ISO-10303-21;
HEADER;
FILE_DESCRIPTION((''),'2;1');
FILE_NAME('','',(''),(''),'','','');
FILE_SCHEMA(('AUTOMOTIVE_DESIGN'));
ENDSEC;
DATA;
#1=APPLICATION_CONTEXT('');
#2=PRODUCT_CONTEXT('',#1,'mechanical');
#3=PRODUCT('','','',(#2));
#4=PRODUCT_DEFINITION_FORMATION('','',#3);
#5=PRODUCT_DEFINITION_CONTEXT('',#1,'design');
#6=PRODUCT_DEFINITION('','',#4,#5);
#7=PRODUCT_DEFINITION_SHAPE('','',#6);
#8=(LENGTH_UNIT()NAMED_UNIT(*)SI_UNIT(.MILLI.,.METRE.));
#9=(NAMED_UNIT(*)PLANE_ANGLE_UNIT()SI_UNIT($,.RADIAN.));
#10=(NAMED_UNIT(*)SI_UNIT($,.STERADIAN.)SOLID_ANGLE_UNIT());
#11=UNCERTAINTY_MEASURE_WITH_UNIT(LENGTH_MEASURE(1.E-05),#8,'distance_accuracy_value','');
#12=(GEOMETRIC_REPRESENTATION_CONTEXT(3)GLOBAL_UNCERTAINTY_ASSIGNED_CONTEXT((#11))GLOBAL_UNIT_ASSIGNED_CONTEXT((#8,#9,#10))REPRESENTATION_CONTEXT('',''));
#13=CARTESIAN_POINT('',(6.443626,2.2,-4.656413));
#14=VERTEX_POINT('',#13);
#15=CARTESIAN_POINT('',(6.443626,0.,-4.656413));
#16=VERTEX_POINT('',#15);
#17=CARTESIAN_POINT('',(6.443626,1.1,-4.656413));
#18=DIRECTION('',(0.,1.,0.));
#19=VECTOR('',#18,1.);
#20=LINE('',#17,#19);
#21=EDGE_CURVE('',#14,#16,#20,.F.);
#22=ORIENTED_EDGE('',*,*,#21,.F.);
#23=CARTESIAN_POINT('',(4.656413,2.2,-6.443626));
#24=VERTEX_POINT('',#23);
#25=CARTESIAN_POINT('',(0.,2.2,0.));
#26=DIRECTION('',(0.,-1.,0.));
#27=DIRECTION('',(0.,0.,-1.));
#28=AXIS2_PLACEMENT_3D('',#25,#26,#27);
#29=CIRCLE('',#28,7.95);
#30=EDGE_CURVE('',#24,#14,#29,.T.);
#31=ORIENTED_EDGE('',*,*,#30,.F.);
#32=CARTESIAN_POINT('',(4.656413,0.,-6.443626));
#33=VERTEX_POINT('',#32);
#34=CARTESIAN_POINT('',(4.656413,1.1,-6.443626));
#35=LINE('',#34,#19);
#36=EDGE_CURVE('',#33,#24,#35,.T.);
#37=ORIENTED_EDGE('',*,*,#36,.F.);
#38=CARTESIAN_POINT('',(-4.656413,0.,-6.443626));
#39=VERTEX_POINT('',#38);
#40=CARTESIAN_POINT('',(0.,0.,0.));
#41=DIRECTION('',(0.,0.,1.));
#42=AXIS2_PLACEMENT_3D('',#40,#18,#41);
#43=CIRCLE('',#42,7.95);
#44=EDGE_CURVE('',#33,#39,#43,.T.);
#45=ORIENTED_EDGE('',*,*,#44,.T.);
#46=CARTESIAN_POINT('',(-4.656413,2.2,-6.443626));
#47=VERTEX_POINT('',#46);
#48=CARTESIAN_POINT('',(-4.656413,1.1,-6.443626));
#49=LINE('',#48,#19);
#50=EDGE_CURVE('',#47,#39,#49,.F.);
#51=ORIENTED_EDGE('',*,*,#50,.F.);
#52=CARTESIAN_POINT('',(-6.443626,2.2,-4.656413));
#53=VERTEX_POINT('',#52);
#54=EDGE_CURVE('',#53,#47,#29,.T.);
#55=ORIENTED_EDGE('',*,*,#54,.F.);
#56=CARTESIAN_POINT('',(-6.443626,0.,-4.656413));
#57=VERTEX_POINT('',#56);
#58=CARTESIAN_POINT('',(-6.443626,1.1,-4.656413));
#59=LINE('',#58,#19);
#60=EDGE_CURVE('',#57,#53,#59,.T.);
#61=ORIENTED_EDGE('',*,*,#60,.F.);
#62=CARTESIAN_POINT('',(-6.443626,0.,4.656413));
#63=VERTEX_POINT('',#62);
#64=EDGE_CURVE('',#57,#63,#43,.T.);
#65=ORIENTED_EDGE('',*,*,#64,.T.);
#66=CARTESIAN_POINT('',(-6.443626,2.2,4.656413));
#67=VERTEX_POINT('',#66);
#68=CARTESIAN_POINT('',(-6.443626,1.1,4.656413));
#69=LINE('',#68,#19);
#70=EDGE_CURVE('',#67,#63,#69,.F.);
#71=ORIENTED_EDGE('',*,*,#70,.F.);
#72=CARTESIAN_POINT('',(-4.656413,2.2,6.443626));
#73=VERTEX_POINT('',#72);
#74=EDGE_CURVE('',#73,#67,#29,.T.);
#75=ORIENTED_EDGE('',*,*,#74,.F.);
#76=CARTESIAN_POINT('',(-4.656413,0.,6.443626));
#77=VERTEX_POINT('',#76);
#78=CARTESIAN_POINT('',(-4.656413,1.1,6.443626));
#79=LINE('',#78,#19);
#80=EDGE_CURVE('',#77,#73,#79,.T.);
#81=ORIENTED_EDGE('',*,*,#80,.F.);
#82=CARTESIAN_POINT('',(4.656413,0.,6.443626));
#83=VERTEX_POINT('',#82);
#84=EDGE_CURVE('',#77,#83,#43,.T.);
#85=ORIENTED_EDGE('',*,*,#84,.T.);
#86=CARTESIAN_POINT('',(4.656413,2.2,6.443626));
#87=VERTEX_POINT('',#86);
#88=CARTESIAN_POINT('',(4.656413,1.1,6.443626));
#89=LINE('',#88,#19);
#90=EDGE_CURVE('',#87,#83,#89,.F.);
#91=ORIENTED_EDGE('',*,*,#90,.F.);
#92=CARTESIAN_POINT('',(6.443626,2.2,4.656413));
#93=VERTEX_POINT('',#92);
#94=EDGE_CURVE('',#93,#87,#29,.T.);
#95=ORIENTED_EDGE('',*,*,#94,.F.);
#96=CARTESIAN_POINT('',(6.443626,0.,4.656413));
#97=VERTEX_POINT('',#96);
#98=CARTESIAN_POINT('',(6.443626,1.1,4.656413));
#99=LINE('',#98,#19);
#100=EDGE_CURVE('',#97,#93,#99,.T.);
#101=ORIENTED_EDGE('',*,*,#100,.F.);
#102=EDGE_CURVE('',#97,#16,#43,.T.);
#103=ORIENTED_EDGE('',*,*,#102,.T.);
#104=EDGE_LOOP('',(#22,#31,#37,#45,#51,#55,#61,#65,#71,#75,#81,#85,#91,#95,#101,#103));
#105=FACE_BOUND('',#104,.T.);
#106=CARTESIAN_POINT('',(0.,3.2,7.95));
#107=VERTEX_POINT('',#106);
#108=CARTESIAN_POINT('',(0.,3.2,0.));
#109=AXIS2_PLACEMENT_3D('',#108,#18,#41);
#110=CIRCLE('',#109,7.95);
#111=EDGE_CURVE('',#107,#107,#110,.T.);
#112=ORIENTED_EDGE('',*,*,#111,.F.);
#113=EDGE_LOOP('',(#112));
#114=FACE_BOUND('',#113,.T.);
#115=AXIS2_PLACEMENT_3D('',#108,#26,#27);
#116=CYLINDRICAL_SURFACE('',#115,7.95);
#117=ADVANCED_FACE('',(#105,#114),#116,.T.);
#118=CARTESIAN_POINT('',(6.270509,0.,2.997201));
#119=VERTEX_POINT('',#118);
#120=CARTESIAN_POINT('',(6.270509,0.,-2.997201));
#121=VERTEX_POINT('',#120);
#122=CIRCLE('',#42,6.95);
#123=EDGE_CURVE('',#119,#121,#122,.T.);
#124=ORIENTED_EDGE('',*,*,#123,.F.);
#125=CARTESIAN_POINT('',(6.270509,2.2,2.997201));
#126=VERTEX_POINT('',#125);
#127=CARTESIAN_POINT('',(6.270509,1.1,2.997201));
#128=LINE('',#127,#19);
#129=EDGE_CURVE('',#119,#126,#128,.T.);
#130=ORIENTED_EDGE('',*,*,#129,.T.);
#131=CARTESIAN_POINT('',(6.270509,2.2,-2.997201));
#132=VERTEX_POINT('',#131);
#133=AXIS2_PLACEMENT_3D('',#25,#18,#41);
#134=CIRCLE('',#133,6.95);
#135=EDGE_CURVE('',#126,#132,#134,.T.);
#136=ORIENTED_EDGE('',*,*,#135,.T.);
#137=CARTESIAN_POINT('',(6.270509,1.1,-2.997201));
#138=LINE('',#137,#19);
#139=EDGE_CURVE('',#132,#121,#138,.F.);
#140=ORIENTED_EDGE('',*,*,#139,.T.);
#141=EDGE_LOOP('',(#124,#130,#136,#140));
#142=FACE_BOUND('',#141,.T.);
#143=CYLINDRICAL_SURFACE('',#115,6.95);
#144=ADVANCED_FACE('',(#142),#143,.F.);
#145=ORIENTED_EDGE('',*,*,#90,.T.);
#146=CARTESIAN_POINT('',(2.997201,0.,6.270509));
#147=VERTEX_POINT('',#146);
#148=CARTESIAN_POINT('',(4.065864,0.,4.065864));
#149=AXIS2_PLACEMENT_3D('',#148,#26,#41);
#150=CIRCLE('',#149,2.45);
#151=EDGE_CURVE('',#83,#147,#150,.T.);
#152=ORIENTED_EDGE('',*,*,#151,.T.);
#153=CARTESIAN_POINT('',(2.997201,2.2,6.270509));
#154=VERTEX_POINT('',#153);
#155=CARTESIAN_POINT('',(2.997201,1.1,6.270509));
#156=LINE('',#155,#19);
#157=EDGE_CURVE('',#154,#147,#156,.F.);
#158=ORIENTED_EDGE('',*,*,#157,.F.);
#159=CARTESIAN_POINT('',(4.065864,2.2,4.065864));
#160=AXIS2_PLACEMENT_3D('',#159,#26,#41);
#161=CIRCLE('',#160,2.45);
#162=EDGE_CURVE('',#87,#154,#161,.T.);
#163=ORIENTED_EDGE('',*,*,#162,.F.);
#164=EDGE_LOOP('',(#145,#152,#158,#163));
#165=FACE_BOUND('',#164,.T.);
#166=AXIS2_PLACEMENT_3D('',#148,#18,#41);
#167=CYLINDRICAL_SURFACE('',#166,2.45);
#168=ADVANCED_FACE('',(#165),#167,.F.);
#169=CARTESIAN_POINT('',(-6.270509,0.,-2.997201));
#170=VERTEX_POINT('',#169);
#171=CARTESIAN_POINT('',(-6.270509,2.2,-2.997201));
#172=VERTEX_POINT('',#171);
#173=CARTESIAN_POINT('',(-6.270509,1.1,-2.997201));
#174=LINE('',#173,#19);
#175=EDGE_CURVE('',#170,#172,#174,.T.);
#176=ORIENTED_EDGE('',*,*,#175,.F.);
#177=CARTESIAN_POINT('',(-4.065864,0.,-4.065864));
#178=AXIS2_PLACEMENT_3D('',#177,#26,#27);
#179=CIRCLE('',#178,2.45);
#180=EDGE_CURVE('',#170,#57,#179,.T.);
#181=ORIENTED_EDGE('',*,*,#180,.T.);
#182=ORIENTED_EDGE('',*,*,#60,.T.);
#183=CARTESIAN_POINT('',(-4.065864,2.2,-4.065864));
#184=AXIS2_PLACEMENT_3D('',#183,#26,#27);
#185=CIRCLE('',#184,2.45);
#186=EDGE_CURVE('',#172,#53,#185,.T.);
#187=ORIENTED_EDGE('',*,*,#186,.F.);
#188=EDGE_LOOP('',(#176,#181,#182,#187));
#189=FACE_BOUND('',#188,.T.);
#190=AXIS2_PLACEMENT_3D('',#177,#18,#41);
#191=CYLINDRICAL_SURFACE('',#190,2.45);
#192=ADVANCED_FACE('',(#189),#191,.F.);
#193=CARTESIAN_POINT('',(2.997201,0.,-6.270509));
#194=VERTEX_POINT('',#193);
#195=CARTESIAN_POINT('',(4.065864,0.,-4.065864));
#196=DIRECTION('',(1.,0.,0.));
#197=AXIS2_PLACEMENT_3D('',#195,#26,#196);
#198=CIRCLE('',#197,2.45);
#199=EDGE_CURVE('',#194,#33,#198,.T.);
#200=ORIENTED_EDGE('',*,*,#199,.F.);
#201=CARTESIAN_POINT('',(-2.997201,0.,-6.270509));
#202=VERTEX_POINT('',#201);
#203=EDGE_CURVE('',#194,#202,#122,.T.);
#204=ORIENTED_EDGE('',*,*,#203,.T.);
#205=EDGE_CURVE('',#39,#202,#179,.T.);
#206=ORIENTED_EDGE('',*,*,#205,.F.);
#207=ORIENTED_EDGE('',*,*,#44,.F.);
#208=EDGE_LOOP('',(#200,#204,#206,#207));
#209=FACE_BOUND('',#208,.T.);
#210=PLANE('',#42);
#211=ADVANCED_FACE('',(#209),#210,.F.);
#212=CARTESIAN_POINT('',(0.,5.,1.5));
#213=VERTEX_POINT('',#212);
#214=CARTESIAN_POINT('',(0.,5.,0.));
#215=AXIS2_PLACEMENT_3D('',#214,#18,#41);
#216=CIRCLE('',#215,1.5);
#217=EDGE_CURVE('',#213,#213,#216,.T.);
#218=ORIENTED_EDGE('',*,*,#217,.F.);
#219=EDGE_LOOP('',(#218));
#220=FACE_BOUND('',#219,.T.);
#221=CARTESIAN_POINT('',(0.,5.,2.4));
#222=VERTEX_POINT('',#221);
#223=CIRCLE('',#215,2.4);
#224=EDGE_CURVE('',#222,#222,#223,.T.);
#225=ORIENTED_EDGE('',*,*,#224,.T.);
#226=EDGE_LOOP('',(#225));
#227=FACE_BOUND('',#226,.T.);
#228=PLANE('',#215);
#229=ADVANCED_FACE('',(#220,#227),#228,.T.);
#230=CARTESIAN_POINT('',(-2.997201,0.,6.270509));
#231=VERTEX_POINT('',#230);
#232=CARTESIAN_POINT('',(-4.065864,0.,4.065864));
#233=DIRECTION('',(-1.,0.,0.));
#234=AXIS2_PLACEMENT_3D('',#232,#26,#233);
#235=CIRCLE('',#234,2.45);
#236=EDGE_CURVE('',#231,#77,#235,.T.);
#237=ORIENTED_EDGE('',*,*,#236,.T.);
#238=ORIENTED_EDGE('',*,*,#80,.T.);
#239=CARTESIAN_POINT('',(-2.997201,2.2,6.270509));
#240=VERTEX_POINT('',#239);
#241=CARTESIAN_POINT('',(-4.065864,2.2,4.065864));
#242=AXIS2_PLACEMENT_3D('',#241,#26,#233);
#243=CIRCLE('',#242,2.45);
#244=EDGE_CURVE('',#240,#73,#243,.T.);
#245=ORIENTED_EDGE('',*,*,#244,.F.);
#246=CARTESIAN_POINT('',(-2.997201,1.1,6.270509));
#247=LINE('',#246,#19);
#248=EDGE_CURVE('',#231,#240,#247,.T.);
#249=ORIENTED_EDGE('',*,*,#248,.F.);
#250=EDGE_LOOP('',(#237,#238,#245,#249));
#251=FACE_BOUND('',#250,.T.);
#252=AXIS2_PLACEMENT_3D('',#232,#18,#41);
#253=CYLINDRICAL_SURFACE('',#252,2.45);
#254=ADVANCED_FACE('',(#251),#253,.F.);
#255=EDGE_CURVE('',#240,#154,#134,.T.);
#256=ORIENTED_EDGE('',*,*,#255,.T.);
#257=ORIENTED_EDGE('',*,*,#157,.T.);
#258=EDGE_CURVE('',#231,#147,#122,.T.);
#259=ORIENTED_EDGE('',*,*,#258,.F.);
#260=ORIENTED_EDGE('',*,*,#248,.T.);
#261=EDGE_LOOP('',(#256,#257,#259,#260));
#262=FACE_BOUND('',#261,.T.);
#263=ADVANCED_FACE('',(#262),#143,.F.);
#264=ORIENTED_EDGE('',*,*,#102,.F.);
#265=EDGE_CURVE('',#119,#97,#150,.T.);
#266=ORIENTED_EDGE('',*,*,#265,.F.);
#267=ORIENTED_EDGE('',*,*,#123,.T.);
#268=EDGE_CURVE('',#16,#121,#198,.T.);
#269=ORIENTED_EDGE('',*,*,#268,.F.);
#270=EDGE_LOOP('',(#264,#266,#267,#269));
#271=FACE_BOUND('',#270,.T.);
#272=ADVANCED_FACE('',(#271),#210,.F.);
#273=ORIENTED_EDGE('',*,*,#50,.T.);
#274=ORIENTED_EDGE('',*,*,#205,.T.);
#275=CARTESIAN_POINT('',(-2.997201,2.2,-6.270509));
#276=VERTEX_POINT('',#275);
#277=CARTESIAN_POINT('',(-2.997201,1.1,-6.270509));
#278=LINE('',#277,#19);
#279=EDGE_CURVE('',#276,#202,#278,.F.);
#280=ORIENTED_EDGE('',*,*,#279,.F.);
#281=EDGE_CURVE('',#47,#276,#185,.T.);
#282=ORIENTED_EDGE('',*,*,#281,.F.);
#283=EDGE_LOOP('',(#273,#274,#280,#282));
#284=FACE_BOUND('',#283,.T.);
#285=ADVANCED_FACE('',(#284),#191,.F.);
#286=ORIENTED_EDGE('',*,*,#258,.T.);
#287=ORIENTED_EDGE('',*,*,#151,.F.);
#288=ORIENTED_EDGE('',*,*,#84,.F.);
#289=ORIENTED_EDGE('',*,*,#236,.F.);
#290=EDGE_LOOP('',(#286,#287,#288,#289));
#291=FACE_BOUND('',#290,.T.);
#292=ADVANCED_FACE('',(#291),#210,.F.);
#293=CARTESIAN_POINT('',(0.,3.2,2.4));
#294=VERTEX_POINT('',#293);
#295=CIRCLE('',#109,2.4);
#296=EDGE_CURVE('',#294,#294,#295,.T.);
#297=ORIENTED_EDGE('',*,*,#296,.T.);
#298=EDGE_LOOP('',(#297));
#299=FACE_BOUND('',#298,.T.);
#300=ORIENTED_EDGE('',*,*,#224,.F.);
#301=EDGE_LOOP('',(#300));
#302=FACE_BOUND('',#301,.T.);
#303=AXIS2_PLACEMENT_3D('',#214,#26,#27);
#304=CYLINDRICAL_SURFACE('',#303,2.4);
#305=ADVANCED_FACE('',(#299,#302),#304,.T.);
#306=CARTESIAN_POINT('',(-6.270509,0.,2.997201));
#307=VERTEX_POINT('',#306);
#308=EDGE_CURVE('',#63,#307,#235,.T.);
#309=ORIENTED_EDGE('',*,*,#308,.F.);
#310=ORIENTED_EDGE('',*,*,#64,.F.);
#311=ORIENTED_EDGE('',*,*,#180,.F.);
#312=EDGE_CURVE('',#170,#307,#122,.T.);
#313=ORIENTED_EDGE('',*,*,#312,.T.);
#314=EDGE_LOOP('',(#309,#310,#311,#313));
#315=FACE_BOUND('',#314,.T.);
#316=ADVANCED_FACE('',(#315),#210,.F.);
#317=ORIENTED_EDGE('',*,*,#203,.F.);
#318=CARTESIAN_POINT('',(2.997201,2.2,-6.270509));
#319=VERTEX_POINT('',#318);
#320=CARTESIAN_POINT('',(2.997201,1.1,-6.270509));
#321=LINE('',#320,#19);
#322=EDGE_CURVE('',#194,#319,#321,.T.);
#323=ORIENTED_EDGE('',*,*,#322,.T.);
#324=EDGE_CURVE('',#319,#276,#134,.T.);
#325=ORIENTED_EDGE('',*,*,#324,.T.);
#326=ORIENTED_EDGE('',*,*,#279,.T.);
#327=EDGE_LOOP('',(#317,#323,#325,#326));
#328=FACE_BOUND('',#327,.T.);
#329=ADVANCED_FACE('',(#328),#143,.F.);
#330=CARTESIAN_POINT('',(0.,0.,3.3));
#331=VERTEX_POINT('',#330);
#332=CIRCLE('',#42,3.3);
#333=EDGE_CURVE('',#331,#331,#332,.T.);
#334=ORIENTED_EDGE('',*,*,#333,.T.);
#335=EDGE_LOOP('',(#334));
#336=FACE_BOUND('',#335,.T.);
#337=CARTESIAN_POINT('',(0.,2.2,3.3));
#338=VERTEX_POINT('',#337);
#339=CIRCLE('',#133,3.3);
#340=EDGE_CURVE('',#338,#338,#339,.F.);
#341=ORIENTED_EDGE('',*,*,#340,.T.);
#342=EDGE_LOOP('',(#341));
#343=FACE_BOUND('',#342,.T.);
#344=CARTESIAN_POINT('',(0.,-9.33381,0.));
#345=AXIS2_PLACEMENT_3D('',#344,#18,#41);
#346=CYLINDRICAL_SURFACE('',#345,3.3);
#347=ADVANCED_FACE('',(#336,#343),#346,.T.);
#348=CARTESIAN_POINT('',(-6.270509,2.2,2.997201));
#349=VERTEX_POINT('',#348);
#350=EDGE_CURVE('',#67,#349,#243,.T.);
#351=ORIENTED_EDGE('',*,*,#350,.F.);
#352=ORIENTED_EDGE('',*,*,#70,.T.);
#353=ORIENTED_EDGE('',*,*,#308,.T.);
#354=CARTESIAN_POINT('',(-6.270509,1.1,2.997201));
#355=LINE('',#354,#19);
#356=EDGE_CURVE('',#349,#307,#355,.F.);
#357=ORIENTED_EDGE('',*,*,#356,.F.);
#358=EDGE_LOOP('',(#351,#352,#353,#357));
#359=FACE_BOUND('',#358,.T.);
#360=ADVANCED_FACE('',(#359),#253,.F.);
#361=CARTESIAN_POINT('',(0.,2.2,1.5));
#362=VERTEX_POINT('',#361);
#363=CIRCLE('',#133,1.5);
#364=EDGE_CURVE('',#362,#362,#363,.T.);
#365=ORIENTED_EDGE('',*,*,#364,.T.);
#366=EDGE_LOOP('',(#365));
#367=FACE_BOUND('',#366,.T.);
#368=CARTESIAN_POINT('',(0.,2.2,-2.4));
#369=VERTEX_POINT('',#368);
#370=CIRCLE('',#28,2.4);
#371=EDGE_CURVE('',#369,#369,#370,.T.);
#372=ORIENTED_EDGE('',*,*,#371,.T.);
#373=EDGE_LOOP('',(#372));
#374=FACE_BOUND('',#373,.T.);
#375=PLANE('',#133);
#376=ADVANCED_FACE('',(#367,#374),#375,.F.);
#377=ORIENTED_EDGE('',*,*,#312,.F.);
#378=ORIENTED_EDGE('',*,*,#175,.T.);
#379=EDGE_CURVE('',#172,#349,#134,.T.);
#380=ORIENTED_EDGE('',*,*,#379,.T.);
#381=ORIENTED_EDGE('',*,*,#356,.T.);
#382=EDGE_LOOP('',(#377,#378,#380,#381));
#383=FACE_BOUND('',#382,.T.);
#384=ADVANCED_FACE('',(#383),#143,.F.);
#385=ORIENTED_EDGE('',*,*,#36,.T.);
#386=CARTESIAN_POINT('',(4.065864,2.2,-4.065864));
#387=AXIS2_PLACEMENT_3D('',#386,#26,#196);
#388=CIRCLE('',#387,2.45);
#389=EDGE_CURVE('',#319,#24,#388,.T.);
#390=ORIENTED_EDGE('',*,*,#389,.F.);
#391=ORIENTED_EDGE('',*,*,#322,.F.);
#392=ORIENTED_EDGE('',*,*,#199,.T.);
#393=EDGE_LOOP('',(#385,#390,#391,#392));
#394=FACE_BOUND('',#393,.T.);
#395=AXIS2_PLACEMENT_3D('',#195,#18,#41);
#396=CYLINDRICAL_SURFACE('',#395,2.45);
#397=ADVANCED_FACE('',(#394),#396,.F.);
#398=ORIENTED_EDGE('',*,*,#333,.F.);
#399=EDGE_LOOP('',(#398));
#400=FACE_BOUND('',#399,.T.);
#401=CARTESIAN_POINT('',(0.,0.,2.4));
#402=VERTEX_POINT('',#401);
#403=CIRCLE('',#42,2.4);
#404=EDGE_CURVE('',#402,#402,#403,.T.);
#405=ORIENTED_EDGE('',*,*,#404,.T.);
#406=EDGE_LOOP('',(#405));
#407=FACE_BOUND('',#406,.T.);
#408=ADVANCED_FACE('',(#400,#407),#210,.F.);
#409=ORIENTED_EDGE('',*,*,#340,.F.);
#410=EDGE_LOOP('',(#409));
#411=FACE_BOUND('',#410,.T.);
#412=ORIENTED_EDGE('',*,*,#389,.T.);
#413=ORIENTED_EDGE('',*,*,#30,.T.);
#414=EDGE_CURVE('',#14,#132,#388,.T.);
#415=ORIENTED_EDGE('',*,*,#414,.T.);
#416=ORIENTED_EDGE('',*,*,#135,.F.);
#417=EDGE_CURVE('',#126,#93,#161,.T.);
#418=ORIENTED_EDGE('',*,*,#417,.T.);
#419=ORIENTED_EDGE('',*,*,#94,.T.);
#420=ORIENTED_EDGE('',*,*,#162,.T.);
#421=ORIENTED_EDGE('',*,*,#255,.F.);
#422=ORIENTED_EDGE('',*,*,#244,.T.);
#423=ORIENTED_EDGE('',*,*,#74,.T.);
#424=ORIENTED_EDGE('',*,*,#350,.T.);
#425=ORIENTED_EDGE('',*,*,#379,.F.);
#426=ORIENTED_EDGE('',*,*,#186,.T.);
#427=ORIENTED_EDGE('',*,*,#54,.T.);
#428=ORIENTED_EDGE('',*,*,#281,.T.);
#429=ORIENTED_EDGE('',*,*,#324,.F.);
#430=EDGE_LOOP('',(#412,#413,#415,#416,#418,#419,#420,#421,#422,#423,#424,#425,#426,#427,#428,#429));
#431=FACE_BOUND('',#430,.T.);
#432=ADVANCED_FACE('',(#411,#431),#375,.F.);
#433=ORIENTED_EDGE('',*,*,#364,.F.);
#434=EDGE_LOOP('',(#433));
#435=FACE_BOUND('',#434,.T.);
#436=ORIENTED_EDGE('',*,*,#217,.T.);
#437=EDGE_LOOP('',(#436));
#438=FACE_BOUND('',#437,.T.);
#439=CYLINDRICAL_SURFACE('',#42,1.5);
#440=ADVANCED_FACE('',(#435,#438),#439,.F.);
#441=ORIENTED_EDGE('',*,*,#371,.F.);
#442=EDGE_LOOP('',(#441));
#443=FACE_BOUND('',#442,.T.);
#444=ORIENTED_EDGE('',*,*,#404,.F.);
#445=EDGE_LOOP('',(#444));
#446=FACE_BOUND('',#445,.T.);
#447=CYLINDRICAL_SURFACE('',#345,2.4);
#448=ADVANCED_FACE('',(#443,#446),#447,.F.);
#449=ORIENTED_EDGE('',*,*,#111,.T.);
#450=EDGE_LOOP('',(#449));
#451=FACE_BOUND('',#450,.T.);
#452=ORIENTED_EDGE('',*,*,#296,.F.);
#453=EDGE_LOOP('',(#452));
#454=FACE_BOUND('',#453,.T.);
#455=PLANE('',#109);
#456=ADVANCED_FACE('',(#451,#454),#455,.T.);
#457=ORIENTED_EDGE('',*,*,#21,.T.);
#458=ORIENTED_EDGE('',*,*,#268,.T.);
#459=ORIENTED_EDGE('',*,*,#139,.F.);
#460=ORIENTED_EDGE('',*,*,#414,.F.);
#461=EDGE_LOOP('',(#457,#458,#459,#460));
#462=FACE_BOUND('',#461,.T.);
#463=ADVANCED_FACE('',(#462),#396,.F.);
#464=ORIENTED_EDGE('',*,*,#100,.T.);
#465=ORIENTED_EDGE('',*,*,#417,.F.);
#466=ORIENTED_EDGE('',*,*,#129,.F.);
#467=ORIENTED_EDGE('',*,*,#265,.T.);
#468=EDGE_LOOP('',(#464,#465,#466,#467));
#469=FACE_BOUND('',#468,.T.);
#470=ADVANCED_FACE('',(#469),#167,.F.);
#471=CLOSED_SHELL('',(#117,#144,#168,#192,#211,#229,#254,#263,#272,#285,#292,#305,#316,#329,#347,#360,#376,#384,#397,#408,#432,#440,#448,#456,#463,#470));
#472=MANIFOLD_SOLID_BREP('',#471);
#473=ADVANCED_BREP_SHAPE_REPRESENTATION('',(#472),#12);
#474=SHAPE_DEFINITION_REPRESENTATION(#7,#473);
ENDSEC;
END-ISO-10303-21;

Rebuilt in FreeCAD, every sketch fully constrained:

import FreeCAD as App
import Part
import Sketcher
Q = App.Units.Quantity


def faces_at(feature, points):
    """Names of the faces that lie closest to the given points."""
    faces = feature.Shape.Faces
    near = lambda p: min(range(len(faces)), key=lambda i: faces[i].distToShape(Part.Vertex(*p))[0])
    return sorted({f"Face{near(p) + 1}" for p in points})

doc = App.newDocument("Part")
body = doc.addObject("PartDesign::Body", "Body")

# Sketch on XZ plane
sketch1 = body.newObject("Sketcher::SketchObject", "Sketch")
sketch1.AttachmentSupport = (doc.getObject("XZ_Plane"), [""])
sketch1.MapMode = "FlatFace"
sketch1.addGeometry(Part.Circle(App.Vector(0, 0, 0), App.Vector(0, 0, 1), 8), False)
sketch1.addConstraint(Sketcher.Constraint("Coincident", 0, 3, -1, 1))
sketch1.addConstraint(Sketcher.Constraint("Diameter", 0, Q("15.9 mm")))
pad1 = body.newObject("PartDesign::Pad", "Pad")
pad1.Profile = sketch1
pad1.Length = 3.2
pad1.Reversed = True

# Sketch on XZ plane
sketch2 = body.newObject("Sketcher::SketchObject", "Sketch001")
sketch2.AttachmentSupport = (doc.getObject("XZ_Plane"), [""])
sketch2.MapMode = "FlatFace"
sketch2.AttachmentOffset = App.Placement(App.Vector(0, 0, -3.2), App.Rotation())
sketch2.addGeometry(Part.Circle(App.Vector(0, 0, 0), App.Vector(0, 0, 1), 2.4), False)
sketch2.addConstraint(Sketcher.Constraint("Coincident", 0, 3, -1, 1))
sketch2.addConstraint(Sketcher.Constraint("Diameter", 0, Q("4.8 mm")))
pad2 = body.newObject("PartDesign::Pad", "Pad001")
pad2.Profile = sketch2
pad2.Length = 1.8
pad2.Reversed = True
doc.recompute()

thickness = body.newObject("PartDesign::Thickness", "Thickness")
thickness.Base = (pad2, faces_at(pad2, [(0, 0, 0)]))
thickness.Value = 1
thickness.Reversed = True
thickness.Join = "Intersection"

# Sketch on XZ plane
sketch3 = body.newObject("Sketcher::SketchObject", "Sketch002")
sketch3.AttachmentSupport = (doc.getObject("XZ_Plane"), [""])
sketch3.MapMode = "FlatFace"
sketch3.addGeometry(Part.Circle(App.Vector(0, 0, 0), App.Vector(0, 0, 1), 3.3), False)
sketch3.addGeometry(Part.Circle(App.Vector(0, 0, 0), App.Vector(0, 0, 1), 2.4), False)
sketch3.addConstraint(Sketcher.Constraint("Coincident", 0, 3, -1, 1))
sketch3.addConstraint(Sketcher.Constraint("Coincident", 1, 3, -1, 1))
sketch3.addConstraint(Sketcher.Constraint("Diameter", 0, Q("6.6 mm")))
sketch3.addConstraint(Sketcher.Constraint("Diameter", 1, Q("4.8 mm")))
pad3 = body.newObject("PartDesign::Pad", "Pad002")
pad3.Profile = sketch3
pad3.Length = 2.2
pad3.Reversed = True

# Sketch on XZ plane
sketch4 = body.newObject("Sketcher::SketchObject", "Sketch003")
sketch4.AttachmentSupport = (doc.getObject("XZ_Plane"), [""])
sketch4.MapMode = "FlatFace"
sketch4.AttachmentOffset = App.Placement(App.Vector(0, 0, -2.2), App.Rotation())
sketch4.addGeometry(Part.Circle(App.Vector(-4.1, -4.1, 0), App.Vector(0, 0, 1), 2.5), False)
sketch4.addConstraint(Sketcher.Constraint("Diameter", 0, Q("4.9 mm")))
sketch4.addConstraint(Sketcher.Constraint("DistanceX", 0, 3, -1, 1, Q("4.065864 mm")))
sketch4.addConstraint(Sketcher.Constraint("DistanceY", 0, 3, -1, 1, Q("4.065864 mm")))
pocket1 = body.newObject("PartDesign::Pocket", "Pocket")
pocket1.Profile = sketch4
pocket1.Type = "ThroughAll"
pocket1.Reversed = True
doc.recompute()

polarpattern = body.newObject("PartDesign::PolarPattern", "PolarPattern")
polarpattern.Originals = [pocket1]
polarpattern.Axis = (doc.getObject("Y_Axis"), [""])
polarpattern.Angle = 360
polarpattern.Occurrences = 4
body.Tip = polarpattern

# Sketch on XZ plane
sketch5 = body.newObject("Sketcher::SketchObject", "Sketch004")
sketch5.AttachmentSupport = (doc.getObject("XZ_Plane"), [""])
sketch5.MapMode = "FlatFace"
sketch5.AttachmentOffset = App.Placement(App.Vector(0, 0, -5), App.Rotation())
sketch5.addGeometry(Part.Circle(App.Vector(0, 0, 0), App.Vector(0, 0, 1), 1.5), False)
sketch5.addConstraint(Sketcher.Constraint("Coincident", 0, 3, -1, 1))
sketch5.addConstraint(Sketcher.Constraint("Diameter", 0, Q("3 mm")))
pocket2 = body.newObject("PartDesign::Pocket", "Pocket001")
pocket2.Profile = sketch5
pocket2.Type = "ThroughAll"
pocket2.Reversed = True

doc.recompute()
